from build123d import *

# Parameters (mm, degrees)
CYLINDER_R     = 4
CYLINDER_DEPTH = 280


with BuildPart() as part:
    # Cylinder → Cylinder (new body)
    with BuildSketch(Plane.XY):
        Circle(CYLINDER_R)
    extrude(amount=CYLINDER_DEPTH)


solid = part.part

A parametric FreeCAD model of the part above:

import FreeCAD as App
import Part
import Sketcher
from FreeCAD import Vector
Q = App.Units.Quantity

doc = App.newDocument("Part")
body = doc.addObject("PartDesign::Body", "Body")

sketch1 = body.newObject("Sketcher::SketchObject", "Sketch")
sketch1.AttachmentSupport = (doc.getObject("XY_Plane"), [""])
sketch1.MapMode = "FlatFace"
sketch1.addGeometry(Part.Circle(Vector(0, 0, 0), Vector(0, 0, 1), 4), False)
sketch1.addConstraint([
    Sketcher.Constraint("Coincident", 0, 3, -1, 1),
    Sketcher.Constraint("Diameter", 0, Q("8 mm")),
])
pad1 = body.newObject("PartDesign::Pad", "Pad")
pad1.Profile = sketch1
pad1.Length = 280

doc.recompute()
